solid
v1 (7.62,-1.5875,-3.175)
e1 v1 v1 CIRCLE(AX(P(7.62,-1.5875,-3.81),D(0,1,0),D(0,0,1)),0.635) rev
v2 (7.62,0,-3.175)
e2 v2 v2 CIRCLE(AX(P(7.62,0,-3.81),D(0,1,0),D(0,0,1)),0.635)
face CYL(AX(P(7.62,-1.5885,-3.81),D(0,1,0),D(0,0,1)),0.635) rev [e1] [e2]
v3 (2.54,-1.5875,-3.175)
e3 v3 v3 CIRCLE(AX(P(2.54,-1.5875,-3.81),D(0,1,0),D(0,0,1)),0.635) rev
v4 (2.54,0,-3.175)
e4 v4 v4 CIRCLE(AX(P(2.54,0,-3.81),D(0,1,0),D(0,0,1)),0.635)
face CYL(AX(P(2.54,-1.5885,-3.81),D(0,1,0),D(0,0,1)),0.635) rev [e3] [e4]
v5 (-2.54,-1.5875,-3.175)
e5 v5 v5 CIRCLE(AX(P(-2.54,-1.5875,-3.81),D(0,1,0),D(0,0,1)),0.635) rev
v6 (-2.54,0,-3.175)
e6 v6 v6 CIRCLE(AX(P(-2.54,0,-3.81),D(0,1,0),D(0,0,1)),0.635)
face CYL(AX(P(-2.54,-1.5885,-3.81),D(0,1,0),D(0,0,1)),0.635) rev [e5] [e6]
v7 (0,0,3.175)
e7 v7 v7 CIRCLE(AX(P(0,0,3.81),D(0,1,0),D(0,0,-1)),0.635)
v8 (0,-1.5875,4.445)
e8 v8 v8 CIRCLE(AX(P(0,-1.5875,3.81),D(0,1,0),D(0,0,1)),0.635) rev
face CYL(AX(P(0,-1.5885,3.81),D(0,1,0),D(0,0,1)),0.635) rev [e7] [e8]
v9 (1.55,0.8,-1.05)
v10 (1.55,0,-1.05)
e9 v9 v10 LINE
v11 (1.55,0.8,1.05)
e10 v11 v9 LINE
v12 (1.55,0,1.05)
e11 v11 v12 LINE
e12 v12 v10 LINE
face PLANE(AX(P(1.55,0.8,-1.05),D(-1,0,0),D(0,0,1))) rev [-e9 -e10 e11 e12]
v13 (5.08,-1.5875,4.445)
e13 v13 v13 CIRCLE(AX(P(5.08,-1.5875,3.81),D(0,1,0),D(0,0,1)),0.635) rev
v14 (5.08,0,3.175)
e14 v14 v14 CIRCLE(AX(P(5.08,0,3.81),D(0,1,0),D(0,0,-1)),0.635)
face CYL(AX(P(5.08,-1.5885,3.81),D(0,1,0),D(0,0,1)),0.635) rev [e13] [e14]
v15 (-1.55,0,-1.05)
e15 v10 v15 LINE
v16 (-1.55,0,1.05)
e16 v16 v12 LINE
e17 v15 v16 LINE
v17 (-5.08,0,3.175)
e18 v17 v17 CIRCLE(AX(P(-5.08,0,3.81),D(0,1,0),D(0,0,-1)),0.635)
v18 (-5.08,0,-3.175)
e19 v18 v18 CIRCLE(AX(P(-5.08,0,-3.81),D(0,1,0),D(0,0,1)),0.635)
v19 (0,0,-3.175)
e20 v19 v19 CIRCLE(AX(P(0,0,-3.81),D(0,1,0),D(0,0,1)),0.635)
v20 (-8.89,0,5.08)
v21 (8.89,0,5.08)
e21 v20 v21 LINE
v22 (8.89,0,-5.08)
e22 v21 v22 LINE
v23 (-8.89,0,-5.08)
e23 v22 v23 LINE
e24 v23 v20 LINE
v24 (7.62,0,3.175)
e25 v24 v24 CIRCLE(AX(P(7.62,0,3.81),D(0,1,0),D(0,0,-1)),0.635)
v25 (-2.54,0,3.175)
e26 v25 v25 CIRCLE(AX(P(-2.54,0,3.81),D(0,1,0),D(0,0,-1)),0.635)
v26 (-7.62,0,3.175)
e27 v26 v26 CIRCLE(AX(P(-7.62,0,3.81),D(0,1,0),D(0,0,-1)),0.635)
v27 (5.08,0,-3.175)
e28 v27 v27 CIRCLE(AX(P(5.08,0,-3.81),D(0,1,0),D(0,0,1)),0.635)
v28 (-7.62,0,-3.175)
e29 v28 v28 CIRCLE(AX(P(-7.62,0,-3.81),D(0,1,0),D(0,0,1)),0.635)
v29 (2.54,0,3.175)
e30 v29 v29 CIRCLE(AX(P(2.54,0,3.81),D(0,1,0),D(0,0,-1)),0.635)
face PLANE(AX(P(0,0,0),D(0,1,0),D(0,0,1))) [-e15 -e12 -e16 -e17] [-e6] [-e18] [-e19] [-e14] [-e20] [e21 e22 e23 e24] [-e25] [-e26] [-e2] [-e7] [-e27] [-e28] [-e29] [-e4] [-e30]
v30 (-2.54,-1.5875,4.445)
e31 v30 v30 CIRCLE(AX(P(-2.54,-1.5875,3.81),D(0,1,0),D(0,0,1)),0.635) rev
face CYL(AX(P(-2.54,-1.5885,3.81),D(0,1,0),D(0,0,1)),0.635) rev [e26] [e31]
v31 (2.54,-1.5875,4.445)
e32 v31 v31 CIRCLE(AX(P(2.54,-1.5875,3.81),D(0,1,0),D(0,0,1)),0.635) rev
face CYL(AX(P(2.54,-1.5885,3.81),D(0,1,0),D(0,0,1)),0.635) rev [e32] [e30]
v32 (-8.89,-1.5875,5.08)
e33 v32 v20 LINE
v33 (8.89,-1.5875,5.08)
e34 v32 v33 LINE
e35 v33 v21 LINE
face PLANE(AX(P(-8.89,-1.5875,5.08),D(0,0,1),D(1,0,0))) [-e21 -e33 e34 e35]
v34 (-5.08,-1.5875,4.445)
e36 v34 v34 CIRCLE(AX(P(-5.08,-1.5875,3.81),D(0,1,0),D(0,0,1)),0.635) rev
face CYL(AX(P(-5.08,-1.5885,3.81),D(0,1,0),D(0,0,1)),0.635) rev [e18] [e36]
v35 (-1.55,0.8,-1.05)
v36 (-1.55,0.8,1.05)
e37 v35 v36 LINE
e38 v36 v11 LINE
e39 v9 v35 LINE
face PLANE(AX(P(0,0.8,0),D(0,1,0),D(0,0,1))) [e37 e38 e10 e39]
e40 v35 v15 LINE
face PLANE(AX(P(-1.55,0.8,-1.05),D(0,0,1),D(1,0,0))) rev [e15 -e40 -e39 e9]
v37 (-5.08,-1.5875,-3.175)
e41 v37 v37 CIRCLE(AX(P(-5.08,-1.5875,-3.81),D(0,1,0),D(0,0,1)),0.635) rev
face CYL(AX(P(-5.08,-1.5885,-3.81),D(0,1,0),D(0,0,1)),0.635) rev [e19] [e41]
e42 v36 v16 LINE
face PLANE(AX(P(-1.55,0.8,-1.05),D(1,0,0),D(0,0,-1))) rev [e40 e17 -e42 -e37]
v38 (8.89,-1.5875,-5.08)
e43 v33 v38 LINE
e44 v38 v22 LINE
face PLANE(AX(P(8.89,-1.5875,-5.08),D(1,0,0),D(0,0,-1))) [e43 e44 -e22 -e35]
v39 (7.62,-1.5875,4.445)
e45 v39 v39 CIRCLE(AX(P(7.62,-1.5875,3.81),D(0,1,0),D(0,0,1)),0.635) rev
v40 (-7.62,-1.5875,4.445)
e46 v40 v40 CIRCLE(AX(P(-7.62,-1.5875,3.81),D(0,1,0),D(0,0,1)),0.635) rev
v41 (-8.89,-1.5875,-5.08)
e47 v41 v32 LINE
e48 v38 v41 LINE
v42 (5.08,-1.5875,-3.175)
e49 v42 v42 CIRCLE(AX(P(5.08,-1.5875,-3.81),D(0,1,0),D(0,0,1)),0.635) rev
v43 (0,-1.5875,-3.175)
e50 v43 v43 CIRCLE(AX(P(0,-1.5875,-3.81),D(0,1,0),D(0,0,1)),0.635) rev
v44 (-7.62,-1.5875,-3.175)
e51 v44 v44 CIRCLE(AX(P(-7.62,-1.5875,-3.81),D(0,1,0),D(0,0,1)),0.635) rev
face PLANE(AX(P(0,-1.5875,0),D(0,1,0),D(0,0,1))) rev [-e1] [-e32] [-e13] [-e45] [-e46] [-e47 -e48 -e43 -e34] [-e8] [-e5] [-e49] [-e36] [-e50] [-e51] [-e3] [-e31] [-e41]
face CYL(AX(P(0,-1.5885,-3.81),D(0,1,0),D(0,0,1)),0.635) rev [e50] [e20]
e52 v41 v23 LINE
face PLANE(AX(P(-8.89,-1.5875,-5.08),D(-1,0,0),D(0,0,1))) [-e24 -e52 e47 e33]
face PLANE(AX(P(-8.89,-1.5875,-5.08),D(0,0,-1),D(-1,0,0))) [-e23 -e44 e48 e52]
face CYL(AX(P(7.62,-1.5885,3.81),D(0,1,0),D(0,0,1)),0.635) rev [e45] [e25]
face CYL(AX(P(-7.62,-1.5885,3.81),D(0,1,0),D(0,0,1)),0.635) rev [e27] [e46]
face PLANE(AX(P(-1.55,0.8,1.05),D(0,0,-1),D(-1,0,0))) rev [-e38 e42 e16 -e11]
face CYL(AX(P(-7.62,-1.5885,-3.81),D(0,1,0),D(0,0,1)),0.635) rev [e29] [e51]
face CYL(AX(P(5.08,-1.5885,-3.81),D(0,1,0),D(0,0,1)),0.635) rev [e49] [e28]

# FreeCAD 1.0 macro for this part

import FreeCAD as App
import Part
import Sketcher

V = App.Vector
Q = App.Units.Quantity

doc = App.newDocument("Part")
body = doc.addObject("PartDesign::Body", "Body")

sketch1 = body.newObject("Sketcher::SketchObject", "Sketch")
sketch1.AttachmentSupport = (doc.getObject("XZ_Plane"), [""])
sketch1.MapMode = "FlatFace"
sketch1.addGeometry([
    Part.LineSegment(V(-9, -5, 0), V(-9, 5, 0)),
    Part.LineSegment(V(-9, 5, 0), V(9, 5, 0)),
    Part.LineSegment(V(9, 5, 0), V(9, -5, 0)),
    Part.LineSegment(V(9, -5, 0), V(-9, -5, 0)),
], False)
sketch1.addConstraint([
    Sketcher.Constraint("Coincident", 0, 2, 1, 1),
    Sketcher.Constraint("Coincident", 1, 2, 2, 1),
    Sketcher.Constraint("Coincident", 2, 2, 3, 1),
    Sketcher.Constraint("Coincident", 3, 2, 0, 1),
    Sketcher.Constraint("Vertical", 0),
    Sketcher.Constraint("Horizontal", 1),
    Sketcher.Constraint("Vertical", 2),
    Sketcher.Constraint("Horizontal", 3),
    Sketcher.Constraint("Symmetric", 0, 2, 2, 2, -1, 1),
    Sketcher.Constraint("DistanceX", 1, 1, 1, 2, Q("0.7 in")),
    Sketcher.Constraint("DistanceY", 0, 1, 0, 2, Q("0.4 in")),
])
pad1 = body.newObject("PartDesign::Pad", "Pad")
pad1.Profile = sketch1
pad1.Length = Q("0.0625 in")

sketch2 = body.newObject("Sketcher::SketchObject", "Sketch001")
sketch2.AttachmentSupport = (doc.getObject("XZ_Plane"), [""])
sketch2.MapMode = "FlatFace"
sketch2.addGeometry([
    Part.LineSegment(V(-1.6, -1.1, 0), V(-1.6, 1.1, 0)),
    Part.LineSegment(V(-1.6, 1.1, 0), V(1.6, 1.1, 0)),
    Part.LineSegment(V(1.6, 1.1, 0), V(1.6, -1.1, 0)),
    Part.LineSegment(V(1.6, -1.1, 0), V(-1.6, -1.1, 0)),
], False)
sketch2.addConstraint([
    Sketcher.Constraint("Coincident", 0, 2, 1, 1),
    Sketcher.Constraint("Coincident", 1, 2, 2, 1),
    Sketcher.Constraint("Coincident", 2, 2, 3, 1),
    Sketcher.Constraint("Coincident", 3, 2, 0, 1),
    Sketcher.Constraint("Vertical", 0),
    Sketcher.Constraint("Horizontal", 1),
    Sketcher.Constraint("Vertical", 2),
    Sketcher.Constraint("Horizontal", 3),
    Sketcher.Constraint("Symmetric", 0, 2, 2, 2, -1, 1),
    Sketcher.Constraint("DistanceX", 1, 1, 1, 2, 3.1),
    Sketcher.Constraint("DistanceY", 0, 1, 0, 2, 2.1),
])
pad2 = body.newObject("PartDesign::Pad", "Pad001")
pad2.Profile = sketch2
pad2.Length = 0.8
pad2.Reversed = True

sketch3 = body.newObject("Sketcher::SketchObject", "Sketch002")
sketch3.AttachmentSupport = (doc.getObject("XZ_Plane"), [""])
sketch3.MapMode = "FlatFace"
sketch3.addGeometry(Part.Circle(V(-7.6, -3.8, 0), V(0, 0, 1), 0.6), False)
sketch3.addConstraint([
    Sketcher.Constraint("Diameter", 0, Q("0.05 in")),
    Sketcher.Constraint("DistanceX", 0, 3, -1, 1, Q("0.3 in")),
    Sketcher.Constraint("DistanceY", 0, 3, -1, 1, Q("0.15 in")),
])
pocket1 = body.newObject("PartDesign::Pocket", "Pocket")
pocket1.Profile = sketch3
pocket1.Type = "UpToFirst"
pocket1.Reversed = True

sketch4 = body.newObject("Sketcher::SketchObject", "Sketch003")
sketch4.AttachmentSupport = (doc.getObject("XZ_Plane"), [""])
sketch4.MapMode = "FlatFace"
sketch4.addGeometry(Part.Circle(V(-7.6, 3.8, 0), V(0, 0, 1), 0.6), False)
sketch4.addConstraint([
    Sketcher.Constraint("Diameter", 0, Q("0.05 in")),
    Sketcher.Constraint("DistanceX", 0, 3, -1, 1, Q("0.3 in")),
    Sketcher.Constraint("DistanceY", -1, 1, 0, 3, Q("0.15 in")),
])
pocket2 = body.newObject("PartDesign::Pocket", "Pocket001")
pocket2.Profile = sketch4
pocket2.Type = "UpToFirst"
pocket2.Reversed = True

sketch5 = body.newObject("Sketcher::SketchObject", "Sketch004")
sketch5.AttachmentSupport = (doc.getObject("XZ_Plane"), [""])
sketch5.MapMode = "FlatFace"
sketch5.addGeometry(Part.Circle(V(-5.1, -3.8, 0), V(0, 0, 1), 0.6), False)
sketch5.addConstraint([
    Sketcher.Constraint("Diameter", 0, Q("0.05 in")),
    Sketcher.Constraint("DistanceX", 0, 3, -1, 1, Q("0.2 in")),
    Sketcher.Constraint("DistanceY", 0, 3, -1, 1, Q("0.15 in")),
])
pocket3 = body.newObject("PartDesign::Pocket", "Pocket002")
pocket3.Profile = sketch5
pocket3.Type = "UpToFirst"
pocket3.Reversed = True

sketch6 = body.newObject("Sketcher::SketchObject", "Sketch005")
sketch6.AttachmentSupport = (doc.getObject("XZ_Plane"), [""])
sketch6.MapMode = "FlatFace"
sketch6.addGeometry(Part.Circle(V(-5.1, 3.8, 0), V(0, 0, 1), 0.6), False)
sketch6.addConstraint([
    Sketcher.Constraint("Diameter", 0, Q("0.05 in")),
    Sketcher.Constraint("DistanceX", 0, 3, -1, 1, Q("0.2 in")),
    Sketcher.Constraint("DistanceY", -1, 1, 0, 3, Q("0.15 in")),
])
pocket4 = body.newObject("PartDesign::Pocket", "Pocket003")
pocket4.Profile = sketch6
pocket4.Type = "UpToFirst"
pocket4.Reversed = True

sketch7 = body.newObject("Sketcher::SketchObject", "Sketch006")
sketch7.AttachmentSupport = (doc.getObject("XZ_Plane"), [""])
sketch7.MapMode = "FlatFace"
sketch7.addGeometry(Part.Circle(V(-2.5, -3.8, 0), V(0, 0, 1), 0.6), False)
sketch7.addConstraint([
    Sketcher.Constraint("Diameter", 0, Q("0.05 in")),
    Sketcher.Constraint("DistanceX", 0, 3, -1, 1, Q("0.1 in")),
    Sketcher.Constraint("DistanceY", 0, 3, -1, 1, Q("0.15 in")),
])
pocket5 = body.newObject("PartDesign::Pocket", "Pocket004")
pocket5.Profile = sketch7
pocket5.Type = "UpToFirst"
pocket5.Reversed = True

sketch8 = body.newObject("Sketcher::SketchObject", "Sketch007")
sketch8.AttachmentSupport = (doc.getObject("XZ_Plane"), [""])
sketch8.MapMode = "FlatFace"
sketch8.addGeometry(Part.Circle(V(-2.5, 3.8, 0), V(0, 0, 1), 0.6), False)
sketch8.addConstraint([
    Sketcher.Constraint("Diameter", 0, Q("0.05 in")),
    Sketcher.Constraint("DistanceX", 0, 3, -1, 1, Q("0.1 in")),
    Sketcher.Constraint("DistanceY", -1, 1, 0, 3, Q("0.15 in")),
])
pocket6 = body.newObject("PartDesign::Pocket", "Pocket005")
pocket6.Profile = sketch8
pocket6.Type = "UpToFirst"
pocket6.Reversed = True

sketch9 = body.newObject("Sketcher::SketchObject", "Sketch008")
sketch9.AttachmentSupport = (doc.getObject("XZ_Plane"), [""])
sketch9.MapMode = "FlatFace"
sketch9.addGeometry(Part.Circle(V(0, -3.8, 0), V(0, 0, 1), 0.6), False)
sketch9.addConstraint([
    Sketcher.Constraint("PointOnObject", 0, 3, -2),
    Sketcher.Constraint("Diameter", 0, Q("0.05 in")),
    Sketcher.Constraint("DistanceY", 0, 3, -1, 1, Q("0.15 in")),
])
pocket7 = body.newObject("PartDesign::Pocket", "Pocket006")
pocket7.Profile = sketch9
pocket7.Type = "UpToFirst"
pocket7.Reversed = True

sketch10 = body.newObject("Sketcher::SketchObject", "Sketch009")
sketch10.AttachmentSupport = (doc.getObject("XZ_Plane"), [""])
sketch10.MapMode = "FlatFace"
sketch10.addGeometry(Part.Circle(V(0, 3.8, 0), V(0, 0, 1), 0.6), False)
sketch10.addConstraint([
    Sketcher.Constraint("PointOnObject", 0, 3, -2),
    Sketcher.Constraint("Diameter", 0, Q("0.05 in")),
    Sketcher.Constraint("DistanceY", -1, 1, 0, 3, Q("0.15 in")),
])
pocket8 = body.newObject("PartDesign::Pocket", "Pocket007")
pocket8.Profile = sketch10
pocket8.Type = "UpToFirst"
pocket8.Reversed = True

sketch11 = body.newObject("Sketcher::SketchObject", "Sketch010")
sketch11.AttachmentSupport = (doc.getObject("XZ_Plane"), [""])
sketch11.MapMode = "FlatFace"
sketch11.addGeometry(Part.Circle(V(2.5, -3.8, 0), V(0, 0, 1), 0.6), False)
sketch11.addConstraint([
    Sketcher.Constraint("Diameter", 0, Q("0.05 in")),
    Sketcher.Constraint("DistanceX", -1, 1, 0, 3, Q("0.1 in")),
    Sketcher.Constraint("DistanceY", 0, 3, -1, 1, Q("0.15 in")),
])
pocket9 = body.newObject("PartDesign::Pocket", "Pocket008")
pocket9.Profile = sketch11
pocket9.Type = "UpToFirst"
pocket9.Reversed = True

sketch12 = body.newObject("Sketcher::SketchObject", "Sketch011")
sketch12.AttachmentSupport = (doc.getObject("XZ_Plane"), [""])
sketch12.MapMode = "FlatFace"
sketch12.addGeometry(Part.Circle(V(2.5, 3.8, 0), V(0, 0, 1), 0.6), False)
sketch12.addConstraint([
    Sketcher.Constraint("Diameter", 0, Q("0.05 in")),
    Sketcher.Constraint("DistanceX", -1, 1, 0, 3, Q("0.1 in")),
    Sketcher.Constraint("DistanceY", -1, 1, 0, 3, Q("0.15 in")),
])
pocket10 = body.newObject("PartDesign::Pocket", "Pocket009")
pocket10.Profile = sketch12
pocket10.Type = "UpToFirst"
pocket10.Reversed = True

sketch13 = body.newObject("Sketcher::SketchObject", "Sketch012")
sketch13.AttachmentSupport = (doc.getObject("XZ_Plane"), [""])
sketch13.MapMode = "FlatFace"
sketch13.addGeometry(Part.Circle(V(5.1, -3.8, 0), V(0, 0, 1), 0.6), False)
sketch13.addConstraint([
    Sketcher.Constraint("Diameter", 0, Q("0.05 in")),
    Sketcher.Constraint("DistanceX", -1, 1, 0, 3, Q("0.2 in")),
    Sketcher.Constraint("DistanceY", 0, 3, -1, 1, Q("0.15 in")),
])
pocket11 = body.newObject("PartDesign::Pocket", "Pocket010")
pocket11.Profile = sketch13
pocket11.Type = "UpToFirst"
pocket11.Reversed = True

sketch14 = body.newObject("Sketcher::SketchObject", "Sketch013")
sketch14.AttachmentSupport = (doc.getObject("XZ_Plane"), [""])
sketch14.MapMode = "FlatFace"
sketch14.addGeometry(Part.Circle(V(5.1, 3.8, 0), V(0, 0, 1), 0.6), False)
sketch14.addConstraint([
    Sketcher.Constraint("Diameter", 0, Q("0.05 in")),
    Sketcher.Constraint("DistanceX", -1, 1, 0, 3, Q("0.2 in")),
    Sketcher.Constraint("DistanceY", -1, 1, 0, 3, Q("0.15 in")),
])
pocket12 = body.newObject("PartDesign::Pocket", "Pocket011")
pocket12.Profile = sketch14
pocket12.Type = "UpToFirst"
pocket12.Reversed = True

sketch15 = body.newObject("Sketcher::SketchObject", "Sketch014")
sketch15.AttachmentSupport = (doc.getObject("XZ_Plane"), [""])
sketch15.MapMode = "FlatFace"
sketch15.addGeometry(Part.Circle(V(7.6, -3.8, 0), V(0, 0, 1), 0.6), False)
sketch15.addConstraint([
    Sketcher.Constraint("Diameter", 0, Q("0.05 in")),
    Sketcher.Constraint("DistanceX", -1, 1, 0, 3, Q("0.3 in")),
    Sketcher.Constraint("DistanceY", 0, 3, -1, 1, Q("0.15 in")),
])
pocket13 = body.newObject("PartDesign::Pocket", "Pocket012")
pocket13.Profile = sketch15
pocket13.Type = "UpToFirst"
pocket13.Reversed = True

sketch16 = body.newObject("Sketcher::SketchObject", "Sketch015")
sketch16.AttachmentSupport = (doc.getObject("XZ_Plane"), [""])
sketch16.MapMode = "FlatFace"
sketch16.addGeometry(Part.Circle(V(7.6, 3.8, 0), V(0, 0, 1), 0.6), False)
sketch16.addConstraint([
    Sketcher.Constraint("Diameter", 0, Q("0.05 in")),
    Sketcher.Constraint("DistanceX", -1, 1, 0, 3, Q("0.3 in")),
    Sketcher.Constraint("DistanceY", -1, 1, 0, 3, Q("0.15 in")),
])
pocket14 = body.newObject("PartDesign::Pocket", "Pocket013")
pocket14.Profile = sketch16
pocket14.Type = "UpToFirst"
pocket14.Reversed = True

doc.recompute()
